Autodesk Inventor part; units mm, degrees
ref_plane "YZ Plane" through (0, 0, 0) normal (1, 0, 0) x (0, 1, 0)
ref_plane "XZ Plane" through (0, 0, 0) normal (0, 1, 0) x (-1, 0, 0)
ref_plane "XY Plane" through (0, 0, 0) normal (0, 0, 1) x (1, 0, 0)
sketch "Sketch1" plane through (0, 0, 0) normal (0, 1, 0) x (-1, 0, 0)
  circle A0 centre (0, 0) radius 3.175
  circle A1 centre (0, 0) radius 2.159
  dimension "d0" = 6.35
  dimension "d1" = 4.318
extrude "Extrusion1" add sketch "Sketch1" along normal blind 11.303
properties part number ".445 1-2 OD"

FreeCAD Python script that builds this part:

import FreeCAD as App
import Part
import Sketcher
from FreeCAD import Vector
Q = App.Units.Quantity

doc = App.newDocument("Part")
body = doc.addObject("PartDesign::Body", "Body")

sketch1 = body.newObject("Sketcher::SketchObject", "Sketch")
sketch1.AttachmentSupport = (doc.getObject("XZ_Plane"), [""])
sketch1.MapMode = "FlatFace"
sketch1.addGeometry(Part.Circle(Vector(0, 0, 0), Vector(0, 0, 1), 3.2), False)
sketch1.addGeometry(Part.Circle(Vector(0, 0, 0), Vector(0, 0, 1), 2.2), False)
sketch1.addConstraint(Sketcher.Constraint("Coincident", 0, 3, -1, 1))
sketch1.addConstraint(Sketcher.Constraint("Coincident", 1, 3, -1, 1))
sketch1.addConstraint(Sketcher.Constraint("Diameter", 0, Q("0.25 in")))
sketch1.addConstraint(Sketcher.Constraint("Diameter", 1, Q("0.17 in")))
pad1 = body.newObject("PartDesign::Pad", "Pad")
pad1.Profile = sketch1
pad1.Length = Q("0.445 in")
pad1.Reversed = True

doc.recompute()
